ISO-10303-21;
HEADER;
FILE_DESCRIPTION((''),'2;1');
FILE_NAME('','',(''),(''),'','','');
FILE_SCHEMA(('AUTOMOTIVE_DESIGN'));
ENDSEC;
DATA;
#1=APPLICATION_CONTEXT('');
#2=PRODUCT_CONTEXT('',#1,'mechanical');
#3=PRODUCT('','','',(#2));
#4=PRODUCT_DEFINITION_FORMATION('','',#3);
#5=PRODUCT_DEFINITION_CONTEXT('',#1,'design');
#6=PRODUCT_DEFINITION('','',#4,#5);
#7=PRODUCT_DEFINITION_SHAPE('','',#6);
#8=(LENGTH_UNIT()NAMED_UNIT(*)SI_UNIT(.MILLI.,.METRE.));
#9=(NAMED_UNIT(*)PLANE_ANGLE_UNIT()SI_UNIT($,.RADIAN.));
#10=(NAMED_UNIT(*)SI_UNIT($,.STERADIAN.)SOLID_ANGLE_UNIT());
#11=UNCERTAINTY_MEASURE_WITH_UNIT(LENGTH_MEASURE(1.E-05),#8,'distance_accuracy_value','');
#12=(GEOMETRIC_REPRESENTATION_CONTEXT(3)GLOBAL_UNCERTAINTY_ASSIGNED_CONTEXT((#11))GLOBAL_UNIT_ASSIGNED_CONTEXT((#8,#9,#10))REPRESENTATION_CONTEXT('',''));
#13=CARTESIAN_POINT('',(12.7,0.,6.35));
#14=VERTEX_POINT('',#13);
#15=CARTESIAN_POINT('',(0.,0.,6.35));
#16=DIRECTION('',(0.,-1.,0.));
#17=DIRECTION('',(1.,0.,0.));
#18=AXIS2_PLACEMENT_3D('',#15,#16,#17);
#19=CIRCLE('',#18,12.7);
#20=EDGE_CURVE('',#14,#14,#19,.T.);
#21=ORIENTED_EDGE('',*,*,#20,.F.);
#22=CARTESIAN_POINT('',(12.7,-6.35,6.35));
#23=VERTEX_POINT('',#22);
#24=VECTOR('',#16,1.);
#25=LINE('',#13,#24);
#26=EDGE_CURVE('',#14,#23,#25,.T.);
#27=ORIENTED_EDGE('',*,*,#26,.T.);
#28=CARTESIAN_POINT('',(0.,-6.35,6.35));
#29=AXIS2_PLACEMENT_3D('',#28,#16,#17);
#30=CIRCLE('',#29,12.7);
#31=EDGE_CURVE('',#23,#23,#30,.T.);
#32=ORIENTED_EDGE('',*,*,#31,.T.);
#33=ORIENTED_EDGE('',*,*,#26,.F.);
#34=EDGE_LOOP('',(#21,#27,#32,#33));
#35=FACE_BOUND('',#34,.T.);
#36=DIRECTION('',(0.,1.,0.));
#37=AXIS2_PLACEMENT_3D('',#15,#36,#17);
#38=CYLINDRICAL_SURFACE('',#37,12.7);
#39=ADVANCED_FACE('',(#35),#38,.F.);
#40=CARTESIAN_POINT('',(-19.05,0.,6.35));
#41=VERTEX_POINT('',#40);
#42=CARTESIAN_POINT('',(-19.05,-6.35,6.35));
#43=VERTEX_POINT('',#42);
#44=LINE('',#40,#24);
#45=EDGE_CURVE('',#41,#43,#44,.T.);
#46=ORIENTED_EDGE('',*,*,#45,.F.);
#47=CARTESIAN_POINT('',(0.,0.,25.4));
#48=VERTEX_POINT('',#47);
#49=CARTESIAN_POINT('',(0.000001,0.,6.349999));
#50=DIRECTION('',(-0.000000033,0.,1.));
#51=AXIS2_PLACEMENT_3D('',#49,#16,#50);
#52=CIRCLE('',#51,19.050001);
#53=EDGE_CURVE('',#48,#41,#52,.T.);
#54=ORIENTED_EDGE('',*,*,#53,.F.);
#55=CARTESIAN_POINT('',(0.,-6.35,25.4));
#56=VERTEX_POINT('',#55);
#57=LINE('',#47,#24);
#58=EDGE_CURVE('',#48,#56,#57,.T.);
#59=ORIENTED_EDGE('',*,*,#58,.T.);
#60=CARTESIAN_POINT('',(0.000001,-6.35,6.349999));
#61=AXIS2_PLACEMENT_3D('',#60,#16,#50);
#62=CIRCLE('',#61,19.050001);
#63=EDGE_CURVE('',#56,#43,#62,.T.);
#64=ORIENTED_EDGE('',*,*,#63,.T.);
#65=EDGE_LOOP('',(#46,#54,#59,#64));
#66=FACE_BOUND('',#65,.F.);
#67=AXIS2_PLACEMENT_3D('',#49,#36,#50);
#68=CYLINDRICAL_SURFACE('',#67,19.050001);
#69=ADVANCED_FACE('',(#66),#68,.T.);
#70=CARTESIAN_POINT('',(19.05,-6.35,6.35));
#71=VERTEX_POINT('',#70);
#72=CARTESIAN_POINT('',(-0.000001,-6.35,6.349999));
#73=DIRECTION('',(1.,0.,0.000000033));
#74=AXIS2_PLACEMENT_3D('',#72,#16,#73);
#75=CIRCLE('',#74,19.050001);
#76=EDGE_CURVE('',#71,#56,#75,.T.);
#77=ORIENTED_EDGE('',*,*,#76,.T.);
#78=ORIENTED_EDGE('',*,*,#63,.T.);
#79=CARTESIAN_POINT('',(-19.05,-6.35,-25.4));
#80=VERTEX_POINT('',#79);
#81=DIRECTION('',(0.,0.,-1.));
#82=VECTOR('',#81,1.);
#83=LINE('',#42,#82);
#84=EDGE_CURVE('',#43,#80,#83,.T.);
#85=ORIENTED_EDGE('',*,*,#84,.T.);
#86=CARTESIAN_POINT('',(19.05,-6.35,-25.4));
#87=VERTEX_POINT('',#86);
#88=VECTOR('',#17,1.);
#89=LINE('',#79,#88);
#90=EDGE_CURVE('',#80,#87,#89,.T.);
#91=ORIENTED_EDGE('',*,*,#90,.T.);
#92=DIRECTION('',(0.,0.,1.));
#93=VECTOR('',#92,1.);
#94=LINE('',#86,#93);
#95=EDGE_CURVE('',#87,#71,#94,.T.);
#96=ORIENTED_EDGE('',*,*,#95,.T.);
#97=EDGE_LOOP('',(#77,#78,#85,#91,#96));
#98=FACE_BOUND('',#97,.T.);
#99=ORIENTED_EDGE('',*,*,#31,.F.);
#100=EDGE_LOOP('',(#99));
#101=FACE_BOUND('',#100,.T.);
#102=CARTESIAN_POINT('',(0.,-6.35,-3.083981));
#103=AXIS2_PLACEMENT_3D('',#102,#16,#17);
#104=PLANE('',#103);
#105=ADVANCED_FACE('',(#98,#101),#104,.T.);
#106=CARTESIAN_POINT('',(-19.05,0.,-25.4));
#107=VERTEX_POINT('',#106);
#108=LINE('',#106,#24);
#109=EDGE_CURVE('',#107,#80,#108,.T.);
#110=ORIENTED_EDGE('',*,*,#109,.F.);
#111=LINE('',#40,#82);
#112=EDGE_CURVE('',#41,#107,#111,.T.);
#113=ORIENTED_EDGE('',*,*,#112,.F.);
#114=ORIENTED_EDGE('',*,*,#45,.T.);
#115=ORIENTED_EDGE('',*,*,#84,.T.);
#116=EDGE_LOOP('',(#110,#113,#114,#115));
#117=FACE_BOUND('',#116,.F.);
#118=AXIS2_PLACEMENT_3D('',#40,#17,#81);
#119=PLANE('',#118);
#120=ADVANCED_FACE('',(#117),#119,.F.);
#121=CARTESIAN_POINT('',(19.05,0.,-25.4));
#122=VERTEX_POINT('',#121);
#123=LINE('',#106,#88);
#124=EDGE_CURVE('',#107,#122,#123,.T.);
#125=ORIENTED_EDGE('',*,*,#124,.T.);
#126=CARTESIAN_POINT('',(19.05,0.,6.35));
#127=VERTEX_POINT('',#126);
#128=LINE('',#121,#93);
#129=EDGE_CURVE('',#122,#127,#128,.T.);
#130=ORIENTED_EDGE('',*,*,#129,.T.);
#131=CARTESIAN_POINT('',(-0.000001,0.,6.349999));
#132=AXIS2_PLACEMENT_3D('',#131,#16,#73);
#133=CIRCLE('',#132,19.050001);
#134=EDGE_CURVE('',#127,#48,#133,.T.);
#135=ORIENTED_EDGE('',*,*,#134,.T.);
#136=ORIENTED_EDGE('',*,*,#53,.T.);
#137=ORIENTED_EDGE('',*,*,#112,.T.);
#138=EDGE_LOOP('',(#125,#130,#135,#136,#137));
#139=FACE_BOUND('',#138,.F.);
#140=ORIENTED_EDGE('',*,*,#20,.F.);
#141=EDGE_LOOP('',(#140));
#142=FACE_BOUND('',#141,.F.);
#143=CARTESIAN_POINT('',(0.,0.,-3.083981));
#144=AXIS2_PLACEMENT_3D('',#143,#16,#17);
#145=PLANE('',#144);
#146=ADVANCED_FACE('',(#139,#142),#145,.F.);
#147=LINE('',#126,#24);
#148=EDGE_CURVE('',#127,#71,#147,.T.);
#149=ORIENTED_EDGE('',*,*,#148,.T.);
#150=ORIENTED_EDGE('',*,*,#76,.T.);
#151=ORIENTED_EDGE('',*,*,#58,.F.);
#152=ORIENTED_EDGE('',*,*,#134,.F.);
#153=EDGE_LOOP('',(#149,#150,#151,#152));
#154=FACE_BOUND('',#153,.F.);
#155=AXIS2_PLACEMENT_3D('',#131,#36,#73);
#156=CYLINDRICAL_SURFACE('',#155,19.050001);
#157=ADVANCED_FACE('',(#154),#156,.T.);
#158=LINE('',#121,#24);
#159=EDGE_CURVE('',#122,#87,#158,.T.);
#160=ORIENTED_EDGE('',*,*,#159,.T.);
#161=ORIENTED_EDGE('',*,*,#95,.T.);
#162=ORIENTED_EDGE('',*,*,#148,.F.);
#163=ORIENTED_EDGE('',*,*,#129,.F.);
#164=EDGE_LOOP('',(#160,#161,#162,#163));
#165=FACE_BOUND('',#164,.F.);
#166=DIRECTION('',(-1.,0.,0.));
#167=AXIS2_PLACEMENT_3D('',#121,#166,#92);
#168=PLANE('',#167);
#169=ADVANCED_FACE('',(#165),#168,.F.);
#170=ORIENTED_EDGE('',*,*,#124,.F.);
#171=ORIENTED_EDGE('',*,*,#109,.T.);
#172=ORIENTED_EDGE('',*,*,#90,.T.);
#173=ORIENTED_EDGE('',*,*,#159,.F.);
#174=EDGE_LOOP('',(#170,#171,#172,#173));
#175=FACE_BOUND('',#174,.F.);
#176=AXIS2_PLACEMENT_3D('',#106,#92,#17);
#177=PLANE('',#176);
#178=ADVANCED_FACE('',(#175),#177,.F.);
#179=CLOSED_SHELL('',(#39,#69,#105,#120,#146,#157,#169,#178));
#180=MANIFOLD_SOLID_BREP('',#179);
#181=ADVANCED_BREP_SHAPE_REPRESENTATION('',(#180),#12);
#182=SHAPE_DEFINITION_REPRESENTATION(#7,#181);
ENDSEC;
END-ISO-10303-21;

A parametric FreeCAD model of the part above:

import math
import FreeCAD as App
import Part
import Sketcher
Q = App.Units.Quantity

doc = App.newDocument("Part")
body = doc.addObject("PartDesign::Body", "Body")

sketch1 = body.newObject("Sketcher::SketchObject", "Sketch")
sketch1.AttachmentSupport = (doc.getObject("XZ_Plane"), [""])
sketch1.MapMode = "FlatFace"
sketch1.addGeometry([
    Part.LineSegment(App.Vector(-19.05, -25.4, 0), App.Vector(19.05, -25.4, 0)),
    Part.LineSegment(App.Vector(19.05, -25.4, 0), App.Vector(19.05, 6.35, 0)),
    Part.ArcOfCircle(Part.Circle(App.Vector(-0.000001, 6.349999, 0), App.Vector(0, 0, 1), 19.050001), math.radians(0.000002), math.radians(89.999998)),
    Part.ArcOfCircle(Part.Circle(App.Vector(0.000001, 6.349999, 0), App.Vector(0, 0, 1), 19.050001), math.radians(90.000002), math.radians(179.999998)),
    Part.LineSegment(App.Vector(-19.05, 6.35, 0), App.Vector(-19.05, -25.4, 0)),
    Part.Circle(App.Vector(0, 6.35, 0), App.Vector(0, 0, 1), 12.7),
], False)
sketch1.addConstraint([
    Sketcher.Constraint("Coincident", 0, 2, 1, 1),
    Sketcher.Constraint("Tangent", 1, 2, 2, 1),
    Sketcher.Constraint("Tangent", 2, 2, 3, 1),
    Sketcher.Constraint("Tangent", 3, 2, 4, 1),
    Sketcher.Constraint("Coincident", 4, 2, 0, 1),
    Sketcher.Constraint("Horizontal", 0),
    Sketcher.Constraint("Vertical", 1),
    Sketcher.Constraint("Vertical", 4),
    Sketcher.Constraint("Coincident", 5, 3, 2, 3),
    Sketcher.Constraint("Equal", 2, 3),
    Sketcher.Constraint("PointOnObject", 2, 3, -2),
    Sketcher.Constraint("PointOnObject", 2, 2, -2),
    Sketcher.Constraint("Diameter", 5, Q("1 in")),
    Sketcher.Constraint("Radius", 2, Q("0.75 in")),
    Sketcher.Constraint("DistanceY", 0, 2, -1, 1, Q("1 in")),
    Sketcher.Constraint("DistanceY", -1, 1, 2, 2, Q("1 in")),
])
pad1 = body.newObject("PartDesign::Pad", "Pad")
pad1.Profile = sketch1
pad1.Length = Q("0.25 in")

doc.recompute()
